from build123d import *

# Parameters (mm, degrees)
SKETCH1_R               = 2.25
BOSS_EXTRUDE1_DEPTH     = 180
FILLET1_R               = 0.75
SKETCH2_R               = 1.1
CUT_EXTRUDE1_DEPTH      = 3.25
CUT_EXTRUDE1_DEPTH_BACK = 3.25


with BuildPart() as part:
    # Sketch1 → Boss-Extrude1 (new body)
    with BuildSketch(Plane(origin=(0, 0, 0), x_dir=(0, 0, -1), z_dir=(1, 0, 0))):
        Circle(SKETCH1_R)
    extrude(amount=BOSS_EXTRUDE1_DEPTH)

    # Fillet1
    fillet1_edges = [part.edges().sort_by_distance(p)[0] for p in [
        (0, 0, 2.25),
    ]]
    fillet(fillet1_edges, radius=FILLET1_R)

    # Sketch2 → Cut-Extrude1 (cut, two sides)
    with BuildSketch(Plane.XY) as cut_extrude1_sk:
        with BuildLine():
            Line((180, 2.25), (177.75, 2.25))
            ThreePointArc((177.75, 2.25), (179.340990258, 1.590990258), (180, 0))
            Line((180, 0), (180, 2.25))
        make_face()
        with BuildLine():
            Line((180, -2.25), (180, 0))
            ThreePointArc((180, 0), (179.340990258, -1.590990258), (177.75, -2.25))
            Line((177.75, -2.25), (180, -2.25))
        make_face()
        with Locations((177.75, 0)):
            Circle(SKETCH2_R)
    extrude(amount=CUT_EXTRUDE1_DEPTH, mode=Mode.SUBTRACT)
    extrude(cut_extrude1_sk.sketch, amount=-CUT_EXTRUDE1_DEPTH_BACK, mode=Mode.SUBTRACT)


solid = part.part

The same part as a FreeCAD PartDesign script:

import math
import FreeCAD as App
import Part
import Sketcher

V = App.Vector
Q = App.Units.Quantity


def edges_at(feature, points):
    """Names of the edges that pass closest to the given points."""
    edges = feature.Shape.Edges
    near = lambda p: min(range(len(edges)), key=lambda i: edges[i].distToShape(Part.Vertex(*p))[0])
    return sorted({f"Edge{near(p) + 1}" for p in points})

doc = App.newDocument("Part")
body = doc.addObject("PartDesign::Body", "Body")

# Sketch on YZ plane
sketch1 = body.newObject("Sketcher::SketchObject", "Sketch")
sketch1.AttachmentSupport = (doc.getObject("YZ_Plane"), [""])
sketch1.MapMode = "FlatFace"
sketch1.addGeometry(Part.Circle(V(0, 0, 0), V(0, 0, 1), 2.2), False)
sketch1.addConstraint(Sketcher.Constraint("Coincident", 0, 3, -1, 1))
sketch1.addConstraint(Sketcher.Constraint("Diameter", 0, Q("4.5 mm")))
pad1 = body.newObject("PartDesign::Pad", "Pad")
pad1.Profile = sketch1
pad1.Length = 180
doc.recompute()

fillet = body.newObject("PartDesign::Fillet", "Fillet")
fillet.Base = (pad1, edges_at(pad1, [(0, 0, 2.25)]))
fillet.Radius = 0.75

# Sketch on XY plane
sketch2 = body.newObject("Sketcher::SketchObject", "Sketch001")
sketch2.AttachmentSupport = (doc.getObject("XY_Plane"), [""])
sketch2.MapMode = "FlatFace"
sketch2.addGeometry(Part.LineSegment(V(180, 2.2, 0), V(177.8, 2.2, 0)), False)
sketch2.addGeometry(Part.ArcOfCircle(Part.Circle(V(177.8, 0, 0), V(0, 0, 1), 2.2), math.radians(0), math.radians(90)), False)
sketch2.addGeometry(Part.LineSegment(V(180, 0, 0), V(180, 2.2, 0)), False)
sketch2.addGeometry(Part.LineSegment(V(180, -2.2, 0), V(180, 0, 0)), False)
sketch2.addGeometry(Part.ArcOfCircle(Part.Circle(V(177.8, 0, 0), V(0, 0, 1), 2.2), math.radians(-90), math.radians(0)), False)
sketch2.addGeometry(Part.LineSegment(V(177.8, -2.2, 0), V(180, -2.2, 0)), False)
sketch2.addGeometry(Part.Circle(V(177.8, 0, 0), V(0, 0, 1), 1.1), False)
sketch2.addConstraint(Sketcher.Constraint("Tangent", 0, 2, 1, 2))
sketch2.addConstraint(Sketcher.Constraint("Tangent", 1, 1, 2, 1))
sketch2.addConstraint(Sketcher.Constraint("Coincident", 2, 2, 0, 1))
sketch2.addConstraint(Sketcher.Constraint("Tangent", 3, 2, 4, 2))
sketch2.addConstraint(Sketcher.Constraint("Tangent", 4, 1, 5, 1))
sketch2.addConstraint(Sketcher.Constraint("Coincident", 5, 2, 3, 1))
sketch2.addConstraint(Sketcher.Constraint("Horizontal", 0))
sketch2.addConstraint(Sketcher.Constraint("Vertical", 2))
sketch2.addConstraint(Sketcher.Constraint("Vertical", 3))
sketch2.addConstraint(Sketcher.Constraint("Horizontal", 5))
sketch2.addConstraint(Sketcher.Constraint("Coincident", 4, 3, 1, 3))
sketch2.addConstraint(Sketcher.Constraint("Coincident", 6, 3, 1, 3))
sketch2.addConstraint(Sketcher.Constraint("Equal", 1, 4))
sketch2.addConstraint(Sketcher.Constraint("PointOnObject", 1, 3, -1))
sketch2.addConstraint(Sketcher.Constraint("Diameter", 6, Q("2.2 mm")))
sketch2.addConstraint(Sketcher.Constraint("Radius", 1, Q("2.25 mm")))
sketch2.addConstraint(Sketcher.Constraint("DistanceX", -1, 1, 1, 1, Q("180 mm")))
pocket1 = body.newObject("PartDesign::Pocket", "Pocket")
pocket1.Profile = sketch2
pocket1.Type = "ThroughAll"
pocket1.Midplane = True

doc.recompute()
